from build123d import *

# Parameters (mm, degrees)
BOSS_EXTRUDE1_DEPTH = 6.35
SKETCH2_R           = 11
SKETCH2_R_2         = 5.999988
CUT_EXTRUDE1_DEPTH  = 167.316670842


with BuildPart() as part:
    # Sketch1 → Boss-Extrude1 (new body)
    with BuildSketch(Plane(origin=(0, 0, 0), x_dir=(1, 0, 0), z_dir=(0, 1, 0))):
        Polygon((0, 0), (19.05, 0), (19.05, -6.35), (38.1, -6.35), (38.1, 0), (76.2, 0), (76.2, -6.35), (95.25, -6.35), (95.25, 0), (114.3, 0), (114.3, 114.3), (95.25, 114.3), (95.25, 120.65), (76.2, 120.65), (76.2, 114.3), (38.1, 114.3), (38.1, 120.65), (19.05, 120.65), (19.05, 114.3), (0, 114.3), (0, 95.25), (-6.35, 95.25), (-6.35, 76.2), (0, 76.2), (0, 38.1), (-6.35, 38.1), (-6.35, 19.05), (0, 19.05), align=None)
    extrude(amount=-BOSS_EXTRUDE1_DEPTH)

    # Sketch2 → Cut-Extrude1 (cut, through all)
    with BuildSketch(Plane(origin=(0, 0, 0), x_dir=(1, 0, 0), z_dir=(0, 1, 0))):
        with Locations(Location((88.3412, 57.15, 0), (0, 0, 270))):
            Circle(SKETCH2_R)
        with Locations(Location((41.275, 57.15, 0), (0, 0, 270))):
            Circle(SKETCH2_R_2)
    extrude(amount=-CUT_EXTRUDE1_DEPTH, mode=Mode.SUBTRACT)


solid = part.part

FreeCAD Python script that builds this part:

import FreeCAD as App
import Part
import Sketcher
from FreeCAD import Vector
Q = App.Units.Quantity


def add_polygon(sketch, points):
    """Adds a closed chain of lines whose ends are joined by coincident constraints."""
    first, n = sketch.GeometryCount, len(points)
    for a, b in zip(points, points[1:] + points[:1]):
        sketch.addGeometry(Part.LineSegment(App.Vector(*a, 0), App.Vector(*b, 0)), False)
    for i in range(n):
        sketch.addConstraint(Sketcher.Constraint("Coincident", first + i, 2, first + (i + 1) % n, 1))

doc = App.newDocument("Part")
body = doc.addObject("PartDesign::Body", "Body")

sketch1 = doc.addObject("Sketcher::SketchObject", "Sketch")
body.addObject(sketch1)
sketch1.AttachmentSupport = (doc.XZ_Plane, [""])
sketch1.MapMode = "FlatFace"
add_polygon(sketch1, [(0, 0), (19, 0), (19, 6), (38, 6), (38, 0), (76, 0), (76, 6), (95, 6), (95, 0), (114, 0), (114, -114), (95, -114), (95, -121), (76, -121), (76, -114), (38, -114), (38, -121), (19, -121), (19, -114), (0, -114), (0, -95), (-6, -95), (-6, -76), (0, -76), (0, -38), (-6, -38), (-6, -19), (0, -19)])
sketch1.addConstraint([
    Sketcher.Constraint("Horizontal", 0),
    Sketcher.Constraint("Vertical", 1),
    Sketcher.Constraint("Horizontal", 2),
    Sketcher.Constraint("Vertical", 3),
    Sketcher.Constraint("Horizontal", 4),
    Sketcher.Constraint("Vertical", 5),
    Sketcher.Constraint("Horizontal", 6),
    Sketcher.Constraint("Vertical", 7),
    Sketcher.Constraint("Horizontal", 8),
    Sketcher.Constraint("Vertical", 9),
    Sketcher.Constraint("Horizontal", 10),
    Sketcher.Constraint("Vertical", 11),
    Sketcher.Constraint("Horizontal", 12),
    Sketcher.Constraint("Vertical", 13),
    Sketcher.Constraint("Horizontal", 14),
    Sketcher.Constraint("Vertical", 15),
    Sketcher.Constraint("Horizontal", 16),
    Sketcher.Constraint("Vertical", 17),
    Sketcher.Constraint("Horizontal", 18),
    Sketcher.Constraint("Vertical", 19),
    Sketcher.Constraint("Horizontal", 20),
    Sketcher.Constraint("Vertical", 21),
    Sketcher.Constraint("Horizontal", 22),
    Sketcher.Constraint("Vertical", 23),
    Sketcher.Constraint("Horizontal", 24),
    Sketcher.Constraint("Vertical", 25),
    Sketcher.Constraint("Horizontal", 26),
    Sketcher.Constraint("Vertical", 27),
    Sketcher.Constraint("Coincident", 27, 2, -1, 1),
    Sketcher.Constraint("PointOnObject", 3, 2, -1),
    Sketcher.Constraint("PointOnObject", 7, 2, -1),
    Sketcher.Constraint("PointOnObject", 18, 2, -2),
    Sketcher.Constraint("PointOnObject", 22, 2, -2),
    Sketcher.Constraint("Horizontal", 2, 2, 5, 2),
    Sketcher.Constraint("Horizontal", 10, 2, 13, 2),
    Sketcher.Constraint("Horizontal", 12, 2, 15, 2),
    Sketcher.Constraint("Horizontal", 14, 2, 17, 2),
    Sketcher.Constraint("Vertical", 7, 2, 10, 2),
    Sketcher.Constraint("Vertical", 5, 2, 12, 2),
    Sketcher.Constraint("Vertical", 3, 2, 14, 2),
    Sketcher.Constraint("Vertical", 1, 2, 16, 2),
    Sketcher.Constraint("Vertical", 21, 2, 24, 2),
    Sketcher.Constraint("Equal", 0, 2),
    Sketcher.Constraint("Equal", 2, 6),
    Sketcher.Constraint("Equal", 6, 8),
    Sketcher.Constraint("Equal", 26, 1),
    Sketcher.Constraint("Equal", 7, 11),
    Sketcher.Constraint("Equal", 18, 19),
    Sketcher.Constraint("Equal", 19, 21),
    Sketcher.Constraint("Equal", 14, 23),
    Sketcher.Constraint("Equal", 21, 25),
    Sketcher.Constraint("Equal", 25, 27),
    Sketcher.Constraint("DistanceX", 4, 1, 4, 2, Q("1.5 in")),
    Sketcher.Constraint("DistanceY", 9, 2, 9, 1, Q("4.5 in")),
    Sketcher.Constraint("DistanceY", 16, 2, 19, 2, Q("1 in")),
])
pad1 = doc.addObject("PartDesign::Pad", "Pad")
body.addObject(pad1)
pad1.Profile = sketch1
pad1.Length = Q("0.25 in")

sketch2 = doc.addObject("Sketcher::SketchObject", "Sketch001")
body.addObject(sketch2)
sketch2.AttachmentSupport = (doc.XZ_Plane, [""])
sketch2.MapMode = "FlatFace"
sketch2.addGeometry([
    Part.Circle(Vector(88, -57, 0), Vector(0, 0, 1), 11),
    Part.Circle(Vector(41, -57, 0), Vector(0, 0, 1), 6),
], False)
sketch2.addConstraint([
    Sketcher.Constraint("Horizontal", 0, 3, 1, 3),
    Sketcher.Constraint("Diameter", 0, Q("22 mm")),
    Sketcher.Constraint("DistanceY", 0, 3, -1, 1, Q("2.25 in")),
    Sketcher.Constraint("DistanceX", -1, 1, 0, 3, Q("3.478 in")),
    Sketcher.Constraint("DistanceX", -1, 1, 1, 3, Q("1.625 in")),
    Sketcher.Constraint("Diameter", 1, Q("11.999976 mm")),
])
pocket1 = doc.addObject("PartDesign::Pocket", "Pocket")
body.addObject(pocket1)
pocket1.Profile = sketch2
pocket1.Type = "ThroughAll"
pocket1.Reversed = True

doc.recompute()
